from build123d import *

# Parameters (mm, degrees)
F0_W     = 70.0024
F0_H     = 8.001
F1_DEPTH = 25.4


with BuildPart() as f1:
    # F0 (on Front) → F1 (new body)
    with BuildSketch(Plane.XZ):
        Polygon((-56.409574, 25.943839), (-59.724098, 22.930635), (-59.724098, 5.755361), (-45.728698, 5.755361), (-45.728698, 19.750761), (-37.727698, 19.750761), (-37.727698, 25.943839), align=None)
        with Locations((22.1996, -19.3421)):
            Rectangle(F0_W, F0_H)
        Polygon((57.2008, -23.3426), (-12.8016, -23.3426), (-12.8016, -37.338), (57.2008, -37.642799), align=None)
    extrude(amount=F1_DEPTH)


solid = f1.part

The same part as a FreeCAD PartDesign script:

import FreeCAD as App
import Part
import Sketcher
from FreeCAD import Vector
Q = App.Units.Quantity

doc = App.newDocument("Part")
params = doc.addObject("Spreadsheet::Sheet", "Params")
for row, (alias, value) in enumerate([
    ("sketch1_width", "0.551 in"),
    ("sketch1_width2", "0.315 in"),
    ("sketch1_width3", "2.756 in"),
    ("sketch1_height", "0.866 in"),
    ("sketch1_height2", "0.878 in"),
    ("pad1_length", "1 in"),
], start=1):
    params.set(f"A{row}", alias)
    params.set(f"B{row}", "=" + value)
    params.setAlias(f"B{row}", alias)

body = doc.addObject("PartDesign::Body", "Body")
body.AllowCompound = True

# Sketch on XZ plane
sketch1 = body.newObject("Sketcher::SketchObject", "Sketch")
sketch1.AttachmentSupport = (doc.getObject("XZ_Plane"), [""])
sketch1.MapMode = "FlatFace"
sketch1.addGeometry([
    Part.LineSegment(Vector(-56.4, 25.9, 0), Vector(-59.7, 22.9, 0)),  # 0
    Part.LineSegment(Vector(-59.7, 22.9, 0), Vector(-59.7, 5.8, 0)),  # 1
    Part.LineSegment(Vector(-59.7, 5.8, 0), Vector(-45.7, 5.8, 0)),  # 2
    Part.LineSegment(Vector(-45.7, 5.8, 0), Vector(-45.7, 19.8, 0)),  # 3
    Part.LineSegment(Vector(-45.7, 19.8, 0), Vector(-37.7, 19.8, 0)),  # 4
    Part.LineSegment(Vector(-37.7, 19.8, 0), Vector(-37.7, 25.9, 0)),  # 5
    Part.LineSegment(Vector(-37.7, 25.9, 0), Vector(-56.4, 25.9, 0)),  # 6
    Part.LineSegment(Vector(-12.8, -15.3, 0), Vector(-12.8, -37.3, 0)),  # 7
    Part.LineSegment(Vector(-12.8, -37.3, 0), Vector(57.2, -37.6, 0)),  # 8
    Part.LineSegment(Vector(57.2, -37.6, 0), Vector(57.2, -15.3, 0)),  # 9
    Part.LineSegment(Vector(57.2, -15.3, 0), Vector(-12.8, -15.3, 0)),  # 10
], False)
sketch1.addConstraint([
    Sketcher.Constraint("Coincident", 0, 2, 1, 1),
    Sketcher.Constraint("Coincident", 1, 2, 2, 1),
    Sketcher.Constraint("Coincident", 2, 2, 3, 1),
    Sketcher.Constraint("Coincident", 3, 2, 4, 1),
    Sketcher.Constraint("Coincident", 4, 2, 5, 1),
    Sketcher.Constraint("Coincident", 5, 2, 6, 1),
    Sketcher.Constraint("Coincident", 6, 2, 0, 1),
    Sketcher.Constraint("Coincident", 7, 2, 8, 1),
    Sketcher.Constraint("Coincident", 8, 2, 9, 1),
    Sketcher.Constraint("Coincident", 9, 2, 10, 1),
    Sketcher.Constraint("Coincident", 10, 2, 7, 1),
    Sketcher.Constraint("Vertical", 1),
    Sketcher.Constraint("Horizontal", 2),
    Sketcher.Constraint("Vertical", 3),
    Sketcher.Constraint("Horizontal", 4),
    Sketcher.Constraint("Vertical", 5),
    Sketcher.Constraint("Horizontal", 6),
    Sketcher.Constraint("Vertical", 7),
    Sketcher.Constraint("Vertical", 9),
    Sketcher.Constraint("Horizontal", 10),
    Sketcher.Constraint("Equal", 2, 3),
    Sketcher.Constraint("DistanceX", 2, 1, 2, 2, Q("0.551 in")),
    Sketcher.Constraint("DistanceX", 4, 1, 4, 2, Q("0.315 in")),
    Sketcher.Constraint("DistanceX", 10, 2, 10, 1, Q("2.756 in")),
    Sketcher.Constraint("DistanceY", 7, 2, 7, 1, Q("0.866 in")),
    Sketcher.Constraint("DistanceY", 9, 1, 9, 2, Q("0.878 in")),
    Sketcher.Constraint("DistanceY", 7, 2, -1, 1, Q("1.47 in")),
    Sketcher.Constraint("DistanceX", 7, 2, -1, 1, Q("0.504 in")),
    Sketcher.Constraint("Distance", 0, Q("4.479449 mm")),
    Sketcher.Constraint("DistanceX", 6, 2, 6, 1, Q("18.681876 mm")),
    Sketcher.Constraint("DistanceY", 1, 2, 1, 1, Q("17.175274 mm")),
    Sketcher.Constraint("DistanceY", -1, 1, 1, 2, Q("5.755361 mm")),
    Sketcher.Constraint("DistanceX", 0, 2, -1, 1, Q("59.724098 mm")),
])
sketch1.setExpression("Constraints[21]", "Params.sketch1_width")
sketch1.setExpression("Constraints[22]", "Params.sketch1_width2")
sketch1.setExpression("Constraints[23]", "Params.sketch1_width3")
sketch1.setExpression("Constraints[24]", "Params.sketch1_height")
sketch1.setExpression("Constraints[25]", "Params.sketch1_height2")
pad1 = body.newObject("PartDesign::Pad", "Pad")
pad1.Profile = sketch1
pad1.setExpression("Length", "Params.pad1_length")

doc.recompute()
